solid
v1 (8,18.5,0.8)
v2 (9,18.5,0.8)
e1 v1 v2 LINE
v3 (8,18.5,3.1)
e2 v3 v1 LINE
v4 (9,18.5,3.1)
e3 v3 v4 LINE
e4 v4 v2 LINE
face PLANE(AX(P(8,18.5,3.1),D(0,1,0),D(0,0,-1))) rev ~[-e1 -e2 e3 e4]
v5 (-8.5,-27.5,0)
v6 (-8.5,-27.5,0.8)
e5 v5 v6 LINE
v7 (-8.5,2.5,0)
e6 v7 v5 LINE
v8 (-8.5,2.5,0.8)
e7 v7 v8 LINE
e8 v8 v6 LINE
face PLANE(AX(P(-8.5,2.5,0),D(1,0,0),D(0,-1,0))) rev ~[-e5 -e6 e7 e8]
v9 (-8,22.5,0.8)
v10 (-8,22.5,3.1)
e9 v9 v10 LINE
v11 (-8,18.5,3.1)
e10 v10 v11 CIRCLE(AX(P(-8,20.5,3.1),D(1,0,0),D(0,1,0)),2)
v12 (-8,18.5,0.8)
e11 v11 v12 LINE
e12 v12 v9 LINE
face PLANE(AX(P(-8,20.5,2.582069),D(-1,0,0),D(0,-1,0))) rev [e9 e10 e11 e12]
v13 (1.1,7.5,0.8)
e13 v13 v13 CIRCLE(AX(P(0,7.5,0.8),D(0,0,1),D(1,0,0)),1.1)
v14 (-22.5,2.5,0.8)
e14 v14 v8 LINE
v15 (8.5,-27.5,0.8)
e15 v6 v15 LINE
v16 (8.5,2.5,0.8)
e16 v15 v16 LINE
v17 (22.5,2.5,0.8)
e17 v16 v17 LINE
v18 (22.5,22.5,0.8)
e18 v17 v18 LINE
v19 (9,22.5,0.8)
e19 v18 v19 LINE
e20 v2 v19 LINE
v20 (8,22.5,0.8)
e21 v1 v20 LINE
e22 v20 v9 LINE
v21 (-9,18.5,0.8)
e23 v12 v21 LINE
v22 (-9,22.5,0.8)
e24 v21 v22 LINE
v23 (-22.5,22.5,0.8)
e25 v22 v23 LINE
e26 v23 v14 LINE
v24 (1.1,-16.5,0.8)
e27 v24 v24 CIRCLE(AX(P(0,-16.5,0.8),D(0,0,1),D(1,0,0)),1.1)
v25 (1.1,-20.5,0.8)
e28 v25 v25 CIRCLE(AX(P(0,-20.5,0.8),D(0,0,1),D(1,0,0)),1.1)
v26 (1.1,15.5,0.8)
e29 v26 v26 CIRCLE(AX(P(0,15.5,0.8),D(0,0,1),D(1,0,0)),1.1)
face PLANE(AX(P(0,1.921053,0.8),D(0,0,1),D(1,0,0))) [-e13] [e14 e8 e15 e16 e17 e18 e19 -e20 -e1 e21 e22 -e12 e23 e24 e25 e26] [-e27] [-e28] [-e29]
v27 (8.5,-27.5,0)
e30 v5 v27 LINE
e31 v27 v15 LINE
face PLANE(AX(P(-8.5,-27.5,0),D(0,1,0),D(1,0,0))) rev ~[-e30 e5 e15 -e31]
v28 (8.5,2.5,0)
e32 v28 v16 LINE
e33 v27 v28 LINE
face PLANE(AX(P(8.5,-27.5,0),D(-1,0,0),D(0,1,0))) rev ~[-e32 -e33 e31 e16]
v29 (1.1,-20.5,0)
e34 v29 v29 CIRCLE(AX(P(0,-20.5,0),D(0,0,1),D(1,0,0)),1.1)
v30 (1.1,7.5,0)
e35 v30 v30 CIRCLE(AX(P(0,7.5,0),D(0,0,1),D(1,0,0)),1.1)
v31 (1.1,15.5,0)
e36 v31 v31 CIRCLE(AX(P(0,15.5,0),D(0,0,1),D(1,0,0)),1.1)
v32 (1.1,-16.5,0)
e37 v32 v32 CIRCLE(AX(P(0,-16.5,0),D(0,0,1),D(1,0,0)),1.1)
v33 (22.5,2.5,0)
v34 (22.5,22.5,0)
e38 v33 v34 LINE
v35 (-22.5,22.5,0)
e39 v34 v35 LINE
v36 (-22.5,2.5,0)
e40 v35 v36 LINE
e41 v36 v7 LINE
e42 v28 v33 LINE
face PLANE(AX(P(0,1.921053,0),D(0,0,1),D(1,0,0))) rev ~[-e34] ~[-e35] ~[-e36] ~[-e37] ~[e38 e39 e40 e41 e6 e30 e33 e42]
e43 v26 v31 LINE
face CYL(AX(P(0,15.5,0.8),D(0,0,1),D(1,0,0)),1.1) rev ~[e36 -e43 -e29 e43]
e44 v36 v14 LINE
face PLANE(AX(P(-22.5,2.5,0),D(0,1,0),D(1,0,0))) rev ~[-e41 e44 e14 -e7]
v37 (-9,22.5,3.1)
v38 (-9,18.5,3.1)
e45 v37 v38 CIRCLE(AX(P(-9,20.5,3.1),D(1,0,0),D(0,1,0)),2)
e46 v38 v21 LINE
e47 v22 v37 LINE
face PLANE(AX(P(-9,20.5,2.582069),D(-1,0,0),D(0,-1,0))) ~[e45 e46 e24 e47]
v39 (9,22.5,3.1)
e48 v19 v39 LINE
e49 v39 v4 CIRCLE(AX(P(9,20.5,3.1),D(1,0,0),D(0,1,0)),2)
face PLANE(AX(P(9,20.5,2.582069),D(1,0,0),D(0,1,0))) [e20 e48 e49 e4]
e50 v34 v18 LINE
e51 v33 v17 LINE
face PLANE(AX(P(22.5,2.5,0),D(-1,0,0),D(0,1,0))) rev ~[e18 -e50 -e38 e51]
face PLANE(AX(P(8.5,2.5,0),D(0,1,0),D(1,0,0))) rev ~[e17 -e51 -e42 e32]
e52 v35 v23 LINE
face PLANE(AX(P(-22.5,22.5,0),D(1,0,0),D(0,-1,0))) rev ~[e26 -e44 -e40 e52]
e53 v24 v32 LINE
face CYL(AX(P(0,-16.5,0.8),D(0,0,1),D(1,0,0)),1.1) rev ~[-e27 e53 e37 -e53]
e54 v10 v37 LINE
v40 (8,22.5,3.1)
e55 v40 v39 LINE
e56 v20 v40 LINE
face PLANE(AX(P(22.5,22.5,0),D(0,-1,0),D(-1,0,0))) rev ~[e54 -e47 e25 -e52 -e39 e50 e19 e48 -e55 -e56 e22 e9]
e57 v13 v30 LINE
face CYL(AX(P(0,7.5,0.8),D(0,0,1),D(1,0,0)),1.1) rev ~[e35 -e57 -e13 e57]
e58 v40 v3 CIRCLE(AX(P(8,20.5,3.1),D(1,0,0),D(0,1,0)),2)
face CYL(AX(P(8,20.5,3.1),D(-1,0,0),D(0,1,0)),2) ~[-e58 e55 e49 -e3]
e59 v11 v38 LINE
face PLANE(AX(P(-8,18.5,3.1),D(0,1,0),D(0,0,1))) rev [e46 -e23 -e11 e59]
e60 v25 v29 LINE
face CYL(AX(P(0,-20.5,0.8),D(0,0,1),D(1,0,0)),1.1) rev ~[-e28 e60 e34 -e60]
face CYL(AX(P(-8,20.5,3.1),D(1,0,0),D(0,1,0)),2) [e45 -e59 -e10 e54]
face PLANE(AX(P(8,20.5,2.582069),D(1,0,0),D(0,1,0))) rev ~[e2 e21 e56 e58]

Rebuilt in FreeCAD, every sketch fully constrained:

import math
import FreeCAD as App
import Part
import Sketcher


def add_polygon(sketch, points):
    """Adds a closed chain of lines whose ends are joined by coincident constraints."""
    first, n = sketch.GeometryCount, len(points)
    for a, b in zip(points, points[1:] + points[:1]):
        sketch.addGeometry(Part.LineSegment(App.Vector(*a, 0), App.Vector(*b, 0)), False)
    for i in range(n):
        sketch.addConstraint(Sketcher.Constraint("Coincident", first + i, 2, first + (i + 1) % n, 1))

doc = App.newDocument("Part")
body = doc.addObject("PartDesign::Body", "Body")

sketch1 = body.newObject("Sketcher::SketchObject", "Sketch")
sketch1.AttachmentSupport = (doc.getObject("XY_Plane"), [""])
sketch1.MapMode = "FlatFace"
add_polygon(sketch1, [(-8, 2), (-8, -28), (8, -28), (8, 2), (22, 2), (22, 22), (-22, 22), (-22, 2)])
sketch1.addConstraint(Sketcher.Constraint("Vertical", 0))
sketch1.addConstraint(Sketcher.Constraint("Horizontal", 1))
sketch1.addConstraint(Sketcher.Constraint("Vertical", 2))
sketch1.addConstraint(Sketcher.Constraint("Horizontal", 3))
sketch1.addConstraint(Sketcher.Constraint("Vertical", 4))
sketch1.addConstraint(Sketcher.Constraint("Horizontal", 5))
sketch1.addConstraint(Sketcher.Constraint("Vertical", 6))
sketch1.addConstraint(Sketcher.Constraint("Horizontal", 7))
sketch1.addConstraint(Sketcher.Constraint("Symmetric", 3, 2, 6, 2, -2))
sketch1.addConstraint(Sketcher.Constraint("Equal", 3, 7))
sketch1.addConstraint(Sketcher.Constraint("DistanceX", 1, 1, 1, 2, 17.0))
sketch1.addConstraint(Sketcher.Constraint("DistanceX", 3, 1, 3, 2, 14.0))
sketch1.addConstraint(Sketcher.Constraint("DistanceY", 0, 2, 0, 1, 30.0))
sketch1.addConstraint(Sketcher.Constraint("DistanceY", 4, 1, 4, 2, 20.0))
sketch1.addConstraint(Sketcher.Constraint("DistanceY", 0, 2, -1, 1, 27.5))
pad1 = body.newObject("PartDesign::Pad", "Pad")
pad1.Profile = sketch1
pad1.Length = 0.8

sketch2 = body.newObject("Sketcher::SketchObject", "Sketch001")
sketch2.AttachmentSupport = (doc.getObject("YZ_Plane"), [""])
sketch2.MapMode = "FlatFace"
sketch2.AttachmentOffset = App.Placement(App.Vector(0, 0, 8), App.Rotation())
sketch2.addGeometry(Part.LineSegment(App.Vector(18.5, 3.1, 0), App.Vector(18.5, 0.8, 0)), False)
sketch2.addGeometry(Part.LineSegment(App.Vector(18.5, 0.8, 0), App.Vector(22.5, 0.8, 0)), False)
sketch2.addGeometry(Part.LineSegment(App.Vector(22.5, 0.8, 0), App.Vector(22.5, 3.1, 0)), False)
sketch2.addGeometry(Part.ArcOfCircle(Part.Circle(App.Vector(20.5, 3.1, 0), App.Vector(0, 0, 1), 2), math.radians(0), math.radians(180)), False)
sketch2.addConstraint(Sketcher.Constraint("Coincident", 0, 2, 1, 1))
sketch2.addConstraint(Sketcher.Constraint("Coincident", 1, 2, 2, 1))
sketch2.addConstraint(Sketcher.Constraint("Tangent", 2, 2, 3, 1))
sketch2.addConstraint(Sketcher.Constraint("Tangent", 3, 2, 0, 1))
sketch2.addConstraint(Sketcher.Constraint("Vertical", 0))
sketch2.addConstraint(Sketcher.Constraint("Horizontal", 1))
sketch2.addConstraint(Sketcher.Constraint("Vertical", 2))
sketch2.addConstraint(Sketcher.Constraint("Radius", 3, 2.0))
sketch2.addConstraint(Sketcher.Constraint("DistanceY", 0, 2, 0, 1, 2.3))
sketch2.addConstraint(Sketcher.Constraint("DistanceX", -1, 1, 3, 3, 20.5))
sketch2.addConstraint(Sketcher.Constraint("DistanceY", -1, 1, 3, 3, 3.1))
pad2 = body.newObject("PartDesign::Pad", "Pad001")
pad2.Profile = sketch2
pad2.Length = 1
body2 = doc.addObject("PartDesign::Body", "Body001")
doc.recompute()

body2.BaseFeature = body
doc.recompute()

mirroring = doc.addObject("Part::Mirroring", "Mirroring")
mirroring.Source = body
mirroring.Base = App.Vector(0, 0, 0)
mirroring.Normal = App.Vector(1, 0, 0)
body3 = doc.addObject("PartDesign::Body", "Body002")
body3.BaseFeature = mirroring
boolean = body2.newObject("PartDesign::Boolean", "Boolean")
boolean.Type = "Fuse"
boolean.addObjects([body3])
doc.recompute()

sketch3 = body2.newObject("Sketcher::SketchObject", "Sketch002")
sketch3.AttachmentSupport = (doc.getObject("XY_Plane001"), [""])
sketch3.MapMode = "FlatFace"
sketch3.AttachmentOffset = App.Placement(App.Vector(0, 0, 0.8), App.Rotation())
sketch3.addGeometry(Part.Circle(App.Vector(0, 15.5, 0), App.Vector(0, 0, 1), 1.1), False)
sketch3.addGeometry(Part.Circle(App.Vector(0, 7.5, 0), App.Vector(0, 0, 1), 1.1), False)
sketch3.addGeometry(Part.Circle(App.Vector(0, -16.5, 0), App.Vector(0, 0, 1), 1.1), False)
sketch3.addGeometry(Part.Circle(App.Vector(0, -20.5, 0), App.Vector(0, 0, 1), 1.1), False)
sketch3.addConstraint(Sketcher.Constraint("Equal", 0, 1))
sketch3.addConstraint(Sketcher.Constraint("Equal", 1, 2))
sketch3.addConstraint(Sketcher.Constraint("Equal", 2, 3))
sketch3.addConstraint(Sketcher.Constraint("PointOnObject", 0, 3, -2))
sketch3.addConstraint(Sketcher.Constraint("PointOnObject", 1, 3, -2))
sketch3.addConstraint(Sketcher.Constraint("PointOnObject", 2, 3, -2))
sketch3.addConstraint(Sketcher.Constraint("PointOnObject", 3, 3, -2))
sketch3.addConstraint(Sketcher.Constraint("Diameter", 0, 2.2))
sketch3.addConstraint(Sketcher.Constraint("DistanceY", 1, 3, 0, 3, 8.0))
sketch3.addConstraint(Sketcher.Constraint("DistanceY", 2, 3, 1, 3, 24.0))
sketch3.addConstraint(Sketcher.Constraint("DistanceY", 3, 3, 2, 3, 4.0))
sketch3.addConstraint(Sketcher.Constraint("DistanceY", -1, 1, 0, 3, 15.5))
pocket1 = body2.newObject("PartDesign::Pocket", "Pocket")
pocket1.Profile = sketch3
pocket1.Type = "ThroughAll"
mirroring.Visibility = False

doc.recompute()
